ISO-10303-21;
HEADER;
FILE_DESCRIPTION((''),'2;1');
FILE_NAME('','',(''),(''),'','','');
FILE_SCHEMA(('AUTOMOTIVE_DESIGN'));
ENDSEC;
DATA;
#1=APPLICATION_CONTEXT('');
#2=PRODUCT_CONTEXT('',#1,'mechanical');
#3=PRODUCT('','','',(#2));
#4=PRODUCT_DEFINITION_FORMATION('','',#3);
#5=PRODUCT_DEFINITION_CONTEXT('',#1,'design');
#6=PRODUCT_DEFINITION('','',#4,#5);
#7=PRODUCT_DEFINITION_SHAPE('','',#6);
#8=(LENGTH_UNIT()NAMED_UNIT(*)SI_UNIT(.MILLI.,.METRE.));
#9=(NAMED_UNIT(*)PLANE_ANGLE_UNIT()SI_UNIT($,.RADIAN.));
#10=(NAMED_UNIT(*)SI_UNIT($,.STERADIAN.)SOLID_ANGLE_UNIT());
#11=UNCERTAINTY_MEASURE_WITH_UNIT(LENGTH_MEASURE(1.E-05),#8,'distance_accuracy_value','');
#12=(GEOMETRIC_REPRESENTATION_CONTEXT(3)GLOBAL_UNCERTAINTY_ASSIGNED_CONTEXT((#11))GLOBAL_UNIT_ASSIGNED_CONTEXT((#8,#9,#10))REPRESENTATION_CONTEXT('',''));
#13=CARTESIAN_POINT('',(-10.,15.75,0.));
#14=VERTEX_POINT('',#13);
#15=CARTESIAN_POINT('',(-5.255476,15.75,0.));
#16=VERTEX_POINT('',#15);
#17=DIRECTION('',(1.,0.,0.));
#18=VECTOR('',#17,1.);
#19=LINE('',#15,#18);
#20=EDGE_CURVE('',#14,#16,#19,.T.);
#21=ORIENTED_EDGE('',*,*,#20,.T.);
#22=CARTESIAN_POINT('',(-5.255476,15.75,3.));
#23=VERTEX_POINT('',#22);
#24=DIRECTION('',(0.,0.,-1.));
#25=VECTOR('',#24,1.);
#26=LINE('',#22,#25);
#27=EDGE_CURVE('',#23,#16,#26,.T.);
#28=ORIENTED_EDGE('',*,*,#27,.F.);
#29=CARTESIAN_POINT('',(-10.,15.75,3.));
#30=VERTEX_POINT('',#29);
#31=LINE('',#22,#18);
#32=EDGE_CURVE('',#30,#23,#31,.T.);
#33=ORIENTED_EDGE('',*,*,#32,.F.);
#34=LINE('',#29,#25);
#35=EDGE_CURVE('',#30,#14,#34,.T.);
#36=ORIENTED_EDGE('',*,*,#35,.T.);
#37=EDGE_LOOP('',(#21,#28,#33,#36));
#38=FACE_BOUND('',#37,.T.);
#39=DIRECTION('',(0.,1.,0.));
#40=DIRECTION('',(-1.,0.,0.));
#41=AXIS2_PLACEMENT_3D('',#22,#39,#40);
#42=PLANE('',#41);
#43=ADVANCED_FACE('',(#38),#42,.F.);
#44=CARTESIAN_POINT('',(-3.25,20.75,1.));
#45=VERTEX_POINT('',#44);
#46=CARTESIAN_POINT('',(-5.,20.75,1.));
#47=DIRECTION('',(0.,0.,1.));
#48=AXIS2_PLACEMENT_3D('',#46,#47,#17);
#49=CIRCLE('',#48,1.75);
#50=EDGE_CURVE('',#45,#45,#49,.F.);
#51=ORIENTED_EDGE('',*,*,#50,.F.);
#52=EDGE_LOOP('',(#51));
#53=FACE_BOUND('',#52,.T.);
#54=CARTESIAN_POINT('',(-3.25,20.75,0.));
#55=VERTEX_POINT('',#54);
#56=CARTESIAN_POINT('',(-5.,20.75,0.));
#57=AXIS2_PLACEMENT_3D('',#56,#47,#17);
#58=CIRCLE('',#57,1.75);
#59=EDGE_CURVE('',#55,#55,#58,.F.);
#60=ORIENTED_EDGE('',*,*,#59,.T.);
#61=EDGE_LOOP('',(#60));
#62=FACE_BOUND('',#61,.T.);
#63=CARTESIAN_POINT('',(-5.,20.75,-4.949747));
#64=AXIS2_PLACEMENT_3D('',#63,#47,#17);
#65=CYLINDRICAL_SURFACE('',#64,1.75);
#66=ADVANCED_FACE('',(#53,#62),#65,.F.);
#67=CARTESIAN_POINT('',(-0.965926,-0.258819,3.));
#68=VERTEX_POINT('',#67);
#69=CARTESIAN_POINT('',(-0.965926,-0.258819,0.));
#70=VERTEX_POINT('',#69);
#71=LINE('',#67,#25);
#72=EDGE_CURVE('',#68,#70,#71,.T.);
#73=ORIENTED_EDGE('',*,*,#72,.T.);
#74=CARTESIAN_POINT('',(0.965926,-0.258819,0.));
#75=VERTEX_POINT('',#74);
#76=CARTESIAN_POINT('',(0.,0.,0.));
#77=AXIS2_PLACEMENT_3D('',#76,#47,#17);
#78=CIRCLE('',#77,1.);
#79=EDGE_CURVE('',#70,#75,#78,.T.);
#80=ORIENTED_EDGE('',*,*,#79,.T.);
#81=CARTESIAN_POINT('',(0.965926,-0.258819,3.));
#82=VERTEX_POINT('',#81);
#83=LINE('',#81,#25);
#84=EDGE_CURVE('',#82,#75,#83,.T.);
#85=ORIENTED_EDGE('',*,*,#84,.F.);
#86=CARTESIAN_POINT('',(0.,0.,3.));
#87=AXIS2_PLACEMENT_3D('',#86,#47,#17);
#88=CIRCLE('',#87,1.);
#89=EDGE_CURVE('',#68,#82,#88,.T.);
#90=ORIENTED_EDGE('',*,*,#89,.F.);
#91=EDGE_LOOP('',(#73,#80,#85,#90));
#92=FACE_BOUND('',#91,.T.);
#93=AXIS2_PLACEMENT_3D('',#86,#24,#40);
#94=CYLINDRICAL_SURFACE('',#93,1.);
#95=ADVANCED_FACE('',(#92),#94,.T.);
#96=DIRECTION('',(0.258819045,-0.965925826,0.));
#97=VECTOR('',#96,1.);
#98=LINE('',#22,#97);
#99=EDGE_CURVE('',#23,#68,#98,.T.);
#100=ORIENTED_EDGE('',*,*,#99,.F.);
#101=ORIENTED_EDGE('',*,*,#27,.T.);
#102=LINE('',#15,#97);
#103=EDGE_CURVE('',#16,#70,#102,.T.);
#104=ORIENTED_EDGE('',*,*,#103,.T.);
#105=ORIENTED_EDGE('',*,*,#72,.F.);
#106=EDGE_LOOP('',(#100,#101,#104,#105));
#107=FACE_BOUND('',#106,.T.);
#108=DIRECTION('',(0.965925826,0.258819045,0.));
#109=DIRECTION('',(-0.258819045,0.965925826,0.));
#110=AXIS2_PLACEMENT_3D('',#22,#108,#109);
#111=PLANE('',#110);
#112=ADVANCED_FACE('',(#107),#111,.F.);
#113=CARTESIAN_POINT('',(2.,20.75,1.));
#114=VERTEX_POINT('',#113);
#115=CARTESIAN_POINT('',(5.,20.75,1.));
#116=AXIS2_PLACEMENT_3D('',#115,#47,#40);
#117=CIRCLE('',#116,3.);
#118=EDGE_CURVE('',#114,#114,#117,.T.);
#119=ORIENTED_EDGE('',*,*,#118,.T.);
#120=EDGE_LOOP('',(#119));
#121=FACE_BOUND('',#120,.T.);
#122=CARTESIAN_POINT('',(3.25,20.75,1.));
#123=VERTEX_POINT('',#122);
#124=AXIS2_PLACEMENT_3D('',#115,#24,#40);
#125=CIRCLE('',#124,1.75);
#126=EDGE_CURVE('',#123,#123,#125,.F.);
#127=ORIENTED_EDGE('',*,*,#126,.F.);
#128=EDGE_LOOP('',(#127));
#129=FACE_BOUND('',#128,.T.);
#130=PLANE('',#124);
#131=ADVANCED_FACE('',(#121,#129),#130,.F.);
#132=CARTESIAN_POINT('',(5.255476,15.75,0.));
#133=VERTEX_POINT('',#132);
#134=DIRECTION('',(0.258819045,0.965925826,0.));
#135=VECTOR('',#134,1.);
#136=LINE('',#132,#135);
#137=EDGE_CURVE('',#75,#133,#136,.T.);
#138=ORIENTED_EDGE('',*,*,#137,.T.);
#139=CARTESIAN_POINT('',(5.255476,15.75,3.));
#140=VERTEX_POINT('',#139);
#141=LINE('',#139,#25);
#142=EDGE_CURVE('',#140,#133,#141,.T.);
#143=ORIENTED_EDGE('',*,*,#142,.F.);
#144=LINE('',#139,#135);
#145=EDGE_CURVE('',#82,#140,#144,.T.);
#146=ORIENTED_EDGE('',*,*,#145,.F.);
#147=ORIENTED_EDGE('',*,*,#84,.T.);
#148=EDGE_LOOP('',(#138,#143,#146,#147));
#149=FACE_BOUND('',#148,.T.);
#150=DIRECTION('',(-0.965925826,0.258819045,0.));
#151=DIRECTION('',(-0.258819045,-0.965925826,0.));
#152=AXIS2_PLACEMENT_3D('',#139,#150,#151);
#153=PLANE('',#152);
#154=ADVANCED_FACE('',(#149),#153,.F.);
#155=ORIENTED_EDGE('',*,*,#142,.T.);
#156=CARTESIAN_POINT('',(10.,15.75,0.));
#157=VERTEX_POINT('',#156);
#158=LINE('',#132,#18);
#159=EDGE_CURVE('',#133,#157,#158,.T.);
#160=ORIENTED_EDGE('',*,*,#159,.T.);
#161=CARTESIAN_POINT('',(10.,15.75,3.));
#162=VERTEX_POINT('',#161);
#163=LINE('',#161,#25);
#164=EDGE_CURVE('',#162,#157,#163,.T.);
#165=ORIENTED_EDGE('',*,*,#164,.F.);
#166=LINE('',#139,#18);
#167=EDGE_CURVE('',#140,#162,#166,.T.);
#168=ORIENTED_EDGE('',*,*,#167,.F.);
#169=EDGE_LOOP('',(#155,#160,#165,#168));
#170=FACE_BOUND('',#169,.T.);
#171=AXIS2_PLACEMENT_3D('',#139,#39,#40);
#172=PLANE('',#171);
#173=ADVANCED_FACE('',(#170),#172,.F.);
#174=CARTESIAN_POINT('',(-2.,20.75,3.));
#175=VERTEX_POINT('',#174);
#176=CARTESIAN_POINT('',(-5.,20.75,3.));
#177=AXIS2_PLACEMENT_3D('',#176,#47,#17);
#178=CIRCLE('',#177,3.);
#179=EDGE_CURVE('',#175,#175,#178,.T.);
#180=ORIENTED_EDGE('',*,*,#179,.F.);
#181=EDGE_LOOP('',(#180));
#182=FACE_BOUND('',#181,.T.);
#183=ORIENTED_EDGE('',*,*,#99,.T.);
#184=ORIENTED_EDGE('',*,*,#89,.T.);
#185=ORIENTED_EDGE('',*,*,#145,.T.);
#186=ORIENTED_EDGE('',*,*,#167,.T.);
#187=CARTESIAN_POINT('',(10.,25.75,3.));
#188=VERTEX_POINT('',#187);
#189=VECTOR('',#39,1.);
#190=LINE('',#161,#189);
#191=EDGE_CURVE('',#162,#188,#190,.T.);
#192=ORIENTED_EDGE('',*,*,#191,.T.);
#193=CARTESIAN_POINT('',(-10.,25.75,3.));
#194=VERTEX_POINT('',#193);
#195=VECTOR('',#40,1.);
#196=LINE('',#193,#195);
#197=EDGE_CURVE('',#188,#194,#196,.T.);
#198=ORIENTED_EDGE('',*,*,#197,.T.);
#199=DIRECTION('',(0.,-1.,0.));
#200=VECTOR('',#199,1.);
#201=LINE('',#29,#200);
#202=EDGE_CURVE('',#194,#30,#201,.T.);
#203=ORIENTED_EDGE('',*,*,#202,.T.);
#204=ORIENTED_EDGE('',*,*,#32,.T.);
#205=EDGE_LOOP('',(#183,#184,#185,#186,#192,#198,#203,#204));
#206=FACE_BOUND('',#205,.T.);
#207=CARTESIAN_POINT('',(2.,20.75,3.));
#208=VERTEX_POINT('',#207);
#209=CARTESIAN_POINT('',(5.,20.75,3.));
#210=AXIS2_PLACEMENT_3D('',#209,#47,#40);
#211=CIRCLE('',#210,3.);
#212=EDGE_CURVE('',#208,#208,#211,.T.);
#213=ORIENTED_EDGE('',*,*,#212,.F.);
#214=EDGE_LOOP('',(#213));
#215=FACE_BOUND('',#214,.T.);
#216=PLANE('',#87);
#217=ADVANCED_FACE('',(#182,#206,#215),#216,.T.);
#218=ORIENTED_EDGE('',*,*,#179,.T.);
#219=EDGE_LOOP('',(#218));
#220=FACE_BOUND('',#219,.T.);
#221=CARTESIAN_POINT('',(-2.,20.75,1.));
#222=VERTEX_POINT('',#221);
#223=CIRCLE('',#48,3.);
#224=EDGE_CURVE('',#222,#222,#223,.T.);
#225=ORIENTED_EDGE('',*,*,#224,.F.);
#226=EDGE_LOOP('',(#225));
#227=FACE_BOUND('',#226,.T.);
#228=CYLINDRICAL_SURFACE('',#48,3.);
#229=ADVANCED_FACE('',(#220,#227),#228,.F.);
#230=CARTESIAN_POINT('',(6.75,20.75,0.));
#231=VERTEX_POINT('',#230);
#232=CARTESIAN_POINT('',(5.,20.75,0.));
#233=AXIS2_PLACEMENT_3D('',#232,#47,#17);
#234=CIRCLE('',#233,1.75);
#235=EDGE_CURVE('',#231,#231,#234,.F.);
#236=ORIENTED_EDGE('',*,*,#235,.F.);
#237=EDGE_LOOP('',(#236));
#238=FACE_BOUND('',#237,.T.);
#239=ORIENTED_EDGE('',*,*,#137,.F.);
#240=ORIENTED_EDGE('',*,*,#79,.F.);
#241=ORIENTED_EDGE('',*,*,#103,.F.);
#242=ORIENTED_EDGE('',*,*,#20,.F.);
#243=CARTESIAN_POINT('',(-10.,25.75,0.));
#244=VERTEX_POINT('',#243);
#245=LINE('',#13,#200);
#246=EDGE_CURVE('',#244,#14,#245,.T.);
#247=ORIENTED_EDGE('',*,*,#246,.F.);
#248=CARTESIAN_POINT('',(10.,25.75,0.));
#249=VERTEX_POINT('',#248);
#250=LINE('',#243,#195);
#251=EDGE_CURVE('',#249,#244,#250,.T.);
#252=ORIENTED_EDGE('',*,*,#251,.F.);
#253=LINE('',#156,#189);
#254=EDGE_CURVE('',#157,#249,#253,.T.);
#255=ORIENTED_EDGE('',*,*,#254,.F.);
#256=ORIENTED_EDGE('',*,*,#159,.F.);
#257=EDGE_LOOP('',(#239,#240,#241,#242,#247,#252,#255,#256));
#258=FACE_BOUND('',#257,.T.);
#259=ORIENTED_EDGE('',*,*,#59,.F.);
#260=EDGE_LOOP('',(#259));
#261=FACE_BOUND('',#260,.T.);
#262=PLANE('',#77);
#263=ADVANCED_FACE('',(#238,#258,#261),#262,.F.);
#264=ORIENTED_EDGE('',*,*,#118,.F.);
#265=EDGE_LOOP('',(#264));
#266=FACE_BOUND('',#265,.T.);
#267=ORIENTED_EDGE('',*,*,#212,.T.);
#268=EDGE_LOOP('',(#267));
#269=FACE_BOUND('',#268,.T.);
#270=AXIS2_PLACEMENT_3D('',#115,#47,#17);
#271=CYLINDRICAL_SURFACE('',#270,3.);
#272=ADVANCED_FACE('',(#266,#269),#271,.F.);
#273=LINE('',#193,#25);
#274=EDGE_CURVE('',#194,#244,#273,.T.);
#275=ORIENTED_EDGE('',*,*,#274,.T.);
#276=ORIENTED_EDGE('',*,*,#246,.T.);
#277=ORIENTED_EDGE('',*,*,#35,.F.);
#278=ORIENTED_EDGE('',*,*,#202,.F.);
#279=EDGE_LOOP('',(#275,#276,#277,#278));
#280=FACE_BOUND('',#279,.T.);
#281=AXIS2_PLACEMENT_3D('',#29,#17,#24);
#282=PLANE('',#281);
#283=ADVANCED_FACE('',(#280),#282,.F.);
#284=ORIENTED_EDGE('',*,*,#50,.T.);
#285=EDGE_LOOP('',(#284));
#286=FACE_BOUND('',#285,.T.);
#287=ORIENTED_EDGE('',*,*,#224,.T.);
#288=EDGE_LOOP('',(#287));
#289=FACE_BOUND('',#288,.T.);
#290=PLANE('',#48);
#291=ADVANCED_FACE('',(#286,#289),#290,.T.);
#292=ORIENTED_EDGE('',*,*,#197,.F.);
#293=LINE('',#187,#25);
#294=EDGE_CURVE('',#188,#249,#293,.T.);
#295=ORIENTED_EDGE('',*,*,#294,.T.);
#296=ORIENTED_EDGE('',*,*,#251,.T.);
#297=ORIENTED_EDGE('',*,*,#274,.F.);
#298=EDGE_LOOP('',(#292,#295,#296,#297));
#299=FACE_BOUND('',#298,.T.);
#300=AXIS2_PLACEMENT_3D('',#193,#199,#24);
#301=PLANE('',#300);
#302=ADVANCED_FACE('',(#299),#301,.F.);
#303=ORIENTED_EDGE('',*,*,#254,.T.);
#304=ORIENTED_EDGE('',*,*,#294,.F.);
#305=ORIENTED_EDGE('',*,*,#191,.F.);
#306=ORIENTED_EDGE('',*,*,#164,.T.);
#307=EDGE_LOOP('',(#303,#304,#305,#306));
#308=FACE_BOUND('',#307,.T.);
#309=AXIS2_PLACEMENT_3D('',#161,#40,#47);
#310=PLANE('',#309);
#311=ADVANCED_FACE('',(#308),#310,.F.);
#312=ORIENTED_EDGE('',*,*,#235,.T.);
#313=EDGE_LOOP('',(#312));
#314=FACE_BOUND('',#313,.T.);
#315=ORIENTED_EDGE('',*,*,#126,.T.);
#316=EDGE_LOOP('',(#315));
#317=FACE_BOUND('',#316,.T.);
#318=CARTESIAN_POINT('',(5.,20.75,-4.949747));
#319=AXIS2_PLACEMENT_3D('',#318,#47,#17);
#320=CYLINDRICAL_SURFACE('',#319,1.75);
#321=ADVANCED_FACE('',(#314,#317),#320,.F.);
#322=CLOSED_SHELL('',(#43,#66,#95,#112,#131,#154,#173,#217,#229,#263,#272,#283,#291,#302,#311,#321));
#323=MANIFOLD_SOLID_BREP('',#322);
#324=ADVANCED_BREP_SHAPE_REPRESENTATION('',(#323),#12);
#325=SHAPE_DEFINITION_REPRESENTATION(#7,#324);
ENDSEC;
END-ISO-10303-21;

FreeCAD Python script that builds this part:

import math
import FreeCAD as App
import Part
import Sketcher
from FreeCAD import Vector
Q = App.Units.Quantity

doc = App.newDocument("Part")
body = doc.addObject("PartDesign::Body", "Body")

# Sketch on XY plane
sketch1 = doc.addObject("Sketcher::SketchObject", "Sketch")
body.addObject(sketch1)
sketch1.AttachmentSupport = (doc.XY_Plane, [""])
sketch1.MapMode = "FlatFace"
sketch1.addGeometry([
    Part.LineSegment(Vector(-5.255476, 15.75, 0), Vector(-0.965926, -0.258819, 0)),  # 0
    Part.ArcOfCircle(Part.Circle(Vector(0, 0, 0), Vector(0, 0, 1), 1), math.radians(-165), math.radians(-15)),  # 1
    Part.LineSegment(Vector(0.965926, -0.258819, 0), Vector(5.255476, 15.75, 0)),  # 2
    Part.LineSegment(Vector(5.255476, 15.75, 0), Vector(10, 15.75, 0)),  # 3
    Part.LineSegment(Vector(10, 15.75, 0), Vector(10, 25.75, 0)),  # 4
    Part.LineSegment(Vector(10, 25.75, 0), Vector(-10, 25.75, 0)),  # 5
    Part.LineSegment(Vector(-10, 25.75, 0), Vector(-10, 15.75, 0)),  # 6
    Part.LineSegment(Vector(-10, 15.75, 0), Vector(-5.255476, 15.75, 0)),  # 7
], False)
sketch1.addConstraint([
    Sketcher.Constraint("Tangent", 0, 2, 1, 1),
    Sketcher.Constraint("Tangent", 1, 2, 2, 1),
    Sketcher.Constraint("Coincident", 2, 2, 3, 1),
    Sketcher.Constraint("Coincident", 3, 2, 4, 1),
    Sketcher.Constraint("Coincident", 4, 2, 5, 1),
    Sketcher.Constraint("Coincident", 5, 2, 6, 1),
    Sketcher.Constraint("Coincident", 6, 2, 7, 1),
    Sketcher.Constraint("Coincident", 7, 2, 0, 1),
    Sketcher.Constraint("Horizontal", 3),
    Sketcher.Constraint("Vertical", 4),
    Sketcher.Constraint("Horizontal", 5),
    Sketcher.Constraint("Vertical", 6),
    Sketcher.Constraint("Horizontal", 7),
    Sketcher.Constraint("Coincident", 1, 3, -1, 1),
    Sketcher.Constraint("Symmetric", 3, 2, 6, 2, -2),
    Sketcher.Constraint("Horizontal", 0, 2, 1, 2),
    Sketcher.Constraint("Radius", 1, 1.0),
    Sketcher.Constraint("DistanceX", 5, 2, 5, 1, 20.0),
    Sketcher.Constraint("DistanceY", 4, 1, 4, 2, 10.0),
    Sketcher.Constraint("Angle", 0, Q("-75 deg")),
    Sketcher.Constraint("DistanceY", -1, 1, 2, 2, 15.75),
])
pad1 = doc.addObject("PartDesign::Pad", "Pad")
body.addObject(pad1)
pad1.Profile = sketch1
pad1.Length = 3

# Sketch on XY plane
sketch2 = doc.addObject("Sketcher::SketchObject", "Sketch001")
body.addObject(sketch2)
sketch2.AttachmentSupport = (doc.XY_Plane, [""])
sketch2.MapMode = "FlatFace"
sketch2.AttachmentOffset = App.Placement(Vector(0, 0, 3), App.Rotation())
sketch2.addGeometry([
    Part.Circle(Vector(-5, 20.75, 0), Vector(0, 0, 1), 1.75),
    Part.Circle(Vector(5, 20.75, 0), Vector(0, 0, 1), 1.75),
], False)
sketch2.addConstraint([
    Sketcher.Constraint("Equal", 0, 1),
    Sketcher.Constraint("Symmetric", 0, 3, 1, 3, -2),
    Sketcher.Constraint("Diameter", 0, 3.5),
    Sketcher.Constraint("DistanceX", 0, 3, -1, 1, 5.0),
    Sketcher.Constraint("DistanceY", -1, 1, 0, 3, 20.75),
])
pocket1 = doc.addObject("PartDesign::Pocket", "Pocket")
body.addObject(pocket1)
pocket1.Profile = sketch2
pocket1.Length = 3

# Sketch on XY plane
sketch3 = doc.addObject("Sketcher::SketchObject", "Sketch002")
body.addObject(sketch3)
sketch3.AttachmentSupport = (doc.XY_Plane, [""])
sketch3.MapMode = "FlatFace"
sketch3.AttachmentOffset = App.Placement(Vector(0, 0, 3), App.Rotation())
sketch3.addGeometry([
    Part.Circle(Vector(-5, 20.75, 0), Vector(0, 0, 1), 3),
    Part.Circle(Vector(5, 20.75, 0), Vector(0, 0, 1), 3),
], False)
sketch3.addConstraint([
    Sketcher.Constraint("Equal", 0, 1),
    Sketcher.Constraint("Symmetric", 0, 3, 1, 3, -2),
    Sketcher.Constraint("Diameter", 0, 6.0),
    Sketcher.Constraint("DistanceX", 0, 3, -1, 1, 5.0),
    Sketcher.Constraint("DistanceY", -1, 1, 0, 3, 20.75),
])
pocket2 = doc.addObject("PartDesign::Pocket", "Pocket001")
body.addObject(pocket2)
pocket2.Profile = sketch3
pocket2.Length = 2

doc.recompute()
